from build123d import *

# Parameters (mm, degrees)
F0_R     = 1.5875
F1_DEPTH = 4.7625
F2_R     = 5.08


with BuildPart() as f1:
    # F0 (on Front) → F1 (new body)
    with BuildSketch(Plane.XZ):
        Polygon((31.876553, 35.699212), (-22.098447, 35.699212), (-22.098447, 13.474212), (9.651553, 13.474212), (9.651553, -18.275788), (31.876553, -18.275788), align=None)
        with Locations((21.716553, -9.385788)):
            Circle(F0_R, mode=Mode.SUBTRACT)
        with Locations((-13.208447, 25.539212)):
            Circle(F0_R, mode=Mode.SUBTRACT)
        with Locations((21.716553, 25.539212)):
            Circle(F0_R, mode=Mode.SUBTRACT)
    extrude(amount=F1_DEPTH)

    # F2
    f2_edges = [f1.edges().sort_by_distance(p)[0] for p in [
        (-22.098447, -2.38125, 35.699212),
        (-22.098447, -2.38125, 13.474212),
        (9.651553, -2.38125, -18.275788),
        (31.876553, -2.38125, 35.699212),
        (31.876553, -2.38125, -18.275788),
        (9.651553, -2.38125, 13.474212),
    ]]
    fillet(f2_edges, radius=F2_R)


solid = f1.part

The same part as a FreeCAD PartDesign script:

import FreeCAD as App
import Part
import Sketcher
Q = App.Units.Quantity


def edges_at(feature, points):
    """Names of the edges that pass closest to the given points."""
    edges = feature.Shape.Edges
    near = lambda p: min(range(len(edges)), key=lambda i: edges[i].distToShape(Part.Vertex(*p))[0])
    return sorted({f"Edge{near(p) + 1}" for p in points})

doc = App.newDocument("Part")
body = doc.addObject("PartDesign::Body", "Body")

# Sketch on XZ plane
sketch1 = body.newObject("Sketcher::SketchObject", "Sketch")
sketch1.AttachmentSupport = (doc.getObject("XZ_Plane"), [""])
sketch1.MapMode = "FlatFace"
sketch1.addGeometry([
    Part.LineSegment(App.Vector(31.9, 35.7, 0), App.Vector(-22.1, 35.7, 0)),  # 0
    Part.LineSegment(App.Vector(-22.1, 35.7, 0), App.Vector(-22.1, 13.5, 0)),  # 1
    Part.LineSegment(App.Vector(-22.1, 13.5, 0), App.Vector(9.7, 13.5, 0)),  # 2
    Part.LineSegment(App.Vector(9.7, 13.5, 0), App.Vector(9.7, -18.3, 0)),  # 3
    Part.LineSegment(App.Vector(9.7, -18.3, 0), App.Vector(31.9, -18.3, 0)),  # 4
    Part.LineSegment(App.Vector(31.9, -18.3, 0), App.Vector(31.9, 35.7, 0)),  # 5
    Part.Circle(App.Vector(21.7, -9.4, 0), App.Vector(0, 0, 1), 1.6),  # 6
    Part.Circle(App.Vector(-13.2, 25.5, 0), App.Vector(0, 0, 1), 1.6),  # 7
    Part.Circle(App.Vector(21.7, 25.5, 0), App.Vector(0, 0, 1), 1.6),  # 8
], False)
sketch1.addConstraint([
    Sketcher.Constraint("Coincident", 0, 2, 1, 1),
    Sketcher.Constraint("Coincident", 1, 2, 2, 1),
    Sketcher.Constraint("Coincident", 2, 2, 3, 1),
    Sketcher.Constraint("Coincident", 3, 2, 4, 1),
    Sketcher.Constraint("Coincident", 4, 2, 5, 1),
    Sketcher.Constraint("Coincident", 5, 2, 0, 1),
    Sketcher.Constraint("Horizontal", 0),
    Sketcher.Constraint("Vertical", 1),
    Sketcher.Constraint("Horizontal", 2),
    Sketcher.Constraint("Vertical", 3),
    Sketcher.Constraint("Horizontal", 4),
    Sketcher.Constraint("Vertical", 5),
    Sketcher.Constraint("Equal", 6, 7),
    Sketcher.Constraint("Equal", 7, 8),
    Sketcher.Constraint("Horizontal", 7, 3, 8, 3),
    Sketcher.Constraint("Vertical", 6, 3, 8, 3),
    Sketcher.Constraint("Equal", 4, 1),
    Sketcher.Constraint("Equal", 2, 3),
    Sketcher.Constraint("Diameter", 6, Q("0.125 in")),
    Sketcher.Constraint("DistanceX", 2, 1, 2, 2, Q("1.25 in")),
    Sketcher.Constraint("DistanceY", 7, 3, 0, 2, Q("0.4 in")),
    Sketcher.Constraint("DistanceY", 6, 3, 1, 2, Q("0.9 in")),
    Sketcher.Constraint("DistanceX", 7, 3, 2, 2, Q("0.9 in")),
    Sketcher.Constraint("DistanceX", 6, 3, 4, 2, Q("0.4 in")),
    Sketcher.Constraint("DistanceX", 0, 2, 0, 1, Q("2.125 in")),
    Sketcher.Constraint("DistanceY", -1, 1, 7, 3, 25.539212),
    Sketcher.Constraint("DistanceX", -1, 1, 6, 3, 21.716553),
])
pad1 = body.newObject("PartDesign::Pad", "Pad")
pad1.Profile = sketch1
pad1.Length = Q("0.1875 in")
doc.recompute()

fillet = body.newObject("PartDesign::Fillet", "Fillet")
fillet.Base = (pad1, edges_at(pad1, [
    (-22.098, -2.381, 35.699),
    (-22.098, -2.381, 13.474),
    (9.652, -2.381, -18.276),
    (31.877, -2.381, 35.699),
    (31.877, -2.381, -18.276),
    (9.652, -2.381, 13.474),
]))
fillet.Radius = Q("0.2 in")

doc.recompute()
